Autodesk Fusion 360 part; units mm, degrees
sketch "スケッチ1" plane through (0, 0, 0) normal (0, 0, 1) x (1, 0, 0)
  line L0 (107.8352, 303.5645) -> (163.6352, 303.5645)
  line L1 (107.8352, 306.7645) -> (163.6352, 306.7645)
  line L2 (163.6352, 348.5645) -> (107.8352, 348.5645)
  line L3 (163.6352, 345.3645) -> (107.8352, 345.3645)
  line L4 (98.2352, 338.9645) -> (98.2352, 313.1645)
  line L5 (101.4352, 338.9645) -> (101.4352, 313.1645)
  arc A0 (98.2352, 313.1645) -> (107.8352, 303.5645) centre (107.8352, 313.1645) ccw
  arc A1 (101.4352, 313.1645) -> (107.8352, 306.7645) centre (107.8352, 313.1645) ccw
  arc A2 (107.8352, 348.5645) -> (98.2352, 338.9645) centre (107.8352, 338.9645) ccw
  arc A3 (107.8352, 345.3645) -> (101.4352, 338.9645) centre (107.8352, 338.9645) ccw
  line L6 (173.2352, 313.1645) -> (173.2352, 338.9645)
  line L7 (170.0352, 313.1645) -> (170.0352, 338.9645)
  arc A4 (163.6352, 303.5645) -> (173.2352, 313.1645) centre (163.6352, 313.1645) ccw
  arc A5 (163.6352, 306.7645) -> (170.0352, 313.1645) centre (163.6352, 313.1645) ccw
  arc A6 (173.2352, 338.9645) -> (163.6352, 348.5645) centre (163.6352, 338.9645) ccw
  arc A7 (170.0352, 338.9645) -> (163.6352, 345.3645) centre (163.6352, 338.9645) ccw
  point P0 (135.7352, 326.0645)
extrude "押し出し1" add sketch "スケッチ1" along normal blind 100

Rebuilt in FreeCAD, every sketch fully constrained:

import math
import FreeCAD as App
import Part
import Sketcher
Q = App.Units.Quantity

doc = App.newDocument("Part")
body = doc.addObject("PartDesign::Body", "Body")

# Sketch on XY plane
sketch1 = body.newObject("Sketcher::SketchObject", "Sketch")
sketch1.AttachmentSupport = (doc.getObject("XY_Plane"), [""])
sketch1.MapMode = "FlatFace"
sketch1.addGeometry([
    Part.ArcOfCircle(Part.Circle(App.Vector(108, 313, 0), App.Vector(0, 0, 1), 10), math.radians(180), math.radians(270)),  # 0
    Part.LineSegment(App.Vector(108, 304, 0), App.Vector(164, 304, 0)),  # 1
    Part.ArcOfCircle(Part.Circle(App.Vector(164, 313, 0), App.Vector(0, 0, 1), 10), math.radians(-90), math.radians(0)),  # 2
    Part.LineSegment(App.Vector(173, 313, 0), App.Vector(173, 339, 0)),  # 3
    Part.ArcOfCircle(Part.Circle(App.Vector(164, 339, 0), App.Vector(0, 0, 1), 10), math.radians(0), math.radians(90)),  # 4
    Part.LineSegment(App.Vector(164, 349, 0), App.Vector(108, 349, 0)),  # 5
    Part.ArcOfCircle(Part.Circle(App.Vector(108, 339, 0), App.Vector(0, 0, 1), 10), math.radians(90), math.radians(180)),  # 6
    Part.LineSegment(App.Vector(98, 339, 0), App.Vector(98, 313, 0)),  # 7
    Part.LineSegment(App.Vector(164, 307, 0), App.Vector(108, 307, 0)),  # 8
    Part.ArcOfCircle(Part.Circle(App.Vector(108, 313, 0), App.Vector(0, 0, 1), 6), math.radians(180), math.radians(270)),  # 9
    Part.LineSegment(App.Vector(101, 313, 0), App.Vector(101, 339, 0)),  # 10
    Part.ArcOfCircle(Part.Circle(App.Vector(108, 339, 0), App.Vector(0, 0, 1), 6), math.radians(90), math.radians(180)),  # 11
    Part.LineSegment(App.Vector(108, 345, 0), App.Vector(164, 345, 0)),  # 12
    Part.ArcOfCircle(Part.Circle(App.Vector(164, 339, 0), App.Vector(0, 0, 1), 6), math.radians(0), math.radians(90)),  # 13
    Part.LineSegment(App.Vector(170, 339, 0), App.Vector(170, 313, 0)),  # 14
    Part.ArcOfCircle(Part.Circle(App.Vector(164, 313, 0), App.Vector(0, 0, 1), 6), math.radians(-90), math.radians(0)),  # 15
], False)
sketch1.addConstraint([
    Sketcher.Constraint("Tangent", 0, 2, 1, 1),
    Sketcher.Constraint("Tangent", 1, 2, 2, 1),
    Sketcher.Constraint("Tangent", 2, 2, 3, 1),
    Sketcher.Constraint("Tangent", 3, 2, 4, 1),
    Sketcher.Constraint("Tangent", 4, 2, 5, 1),
    Sketcher.Constraint("Tangent", 5, 2, 6, 1),
    Sketcher.Constraint("Tangent", 6, 2, 7, 1),
    Sketcher.Constraint("Tangent", 7, 2, 0, 1),
    Sketcher.Constraint("Tangent", 8, 2, 9, 2),
    Sketcher.Constraint("Tangent", 9, 1, 10, 1),
    Sketcher.Constraint("Tangent", 10, 2, 11, 2),
    Sketcher.Constraint("Tangent", 11, 1, 12, 1),
    Sketcher.Constraint("Tangent", 12, 2, 13, 2),
    Sketcher.Constraint("Tangent", 13, 1, 14, 1),
    Sketcher.Constraint("Tangent", 14, 2, 15, 2),
    Sketcher.Constraint("Tangent", 15, 1, 8, 1),
    Sketcher.Constraint("Horizontal", 1),
    Sketcher.Constraint("Vertical", 3),
    Sketcher.Constraint("Horizontal", 5),
    Sketcher.Constraint("Vertical", 7),
    Sketcher.Constraint("Horizontal", 8),
    Sketcher.Constraint("Vertical", 10),
    Sketcher.Constraint("Horizontal", 12),
    Sketcher.Constraint("Vertical", 14),
    Sketcher.Constraint("Coincident", 9, 3, 0, 3),
    Sketcher.Constraint("Coincident", 11, 3, 6, 3),
    Sketcher.Constraint("Coincident", 13, 3, 4, 3),
    Sketcher.Constraint("Equal", 0, 2),
    Sketcher.Constraint("Equal", 2, 4),
    Sketcher.Constraint("Equal", 4, 6),
    Sketcher.Constraint("Equal", 13, 15),
    Sketcher.Constraint("Radius", 0, Q("9.6 mm")),
    Sketcher.Constraint("Radius", 9, Q("6.4 mm")),
    Sketcher.Constraint("DistanceX", 1, 1, 1, 2, Q("55.8 mm")),
    Sketcher.Constraint("DistanceY", 3, 1, 3, 2, Q("25.8 mm")),
    Sketcher.Constraint("DistanceX", -1, 1, 0, 3, Q("107.8352 mm")),
    Sketcher.Constraint("DistanceY", -1, 1, 0, 3, Q("313.1645 mm")),
])
pad1 = body.newObject("PartDesign::Pad", "Pad")
pad1.Profile = sketch1
pad1.Length = 100

doc.recompute()
